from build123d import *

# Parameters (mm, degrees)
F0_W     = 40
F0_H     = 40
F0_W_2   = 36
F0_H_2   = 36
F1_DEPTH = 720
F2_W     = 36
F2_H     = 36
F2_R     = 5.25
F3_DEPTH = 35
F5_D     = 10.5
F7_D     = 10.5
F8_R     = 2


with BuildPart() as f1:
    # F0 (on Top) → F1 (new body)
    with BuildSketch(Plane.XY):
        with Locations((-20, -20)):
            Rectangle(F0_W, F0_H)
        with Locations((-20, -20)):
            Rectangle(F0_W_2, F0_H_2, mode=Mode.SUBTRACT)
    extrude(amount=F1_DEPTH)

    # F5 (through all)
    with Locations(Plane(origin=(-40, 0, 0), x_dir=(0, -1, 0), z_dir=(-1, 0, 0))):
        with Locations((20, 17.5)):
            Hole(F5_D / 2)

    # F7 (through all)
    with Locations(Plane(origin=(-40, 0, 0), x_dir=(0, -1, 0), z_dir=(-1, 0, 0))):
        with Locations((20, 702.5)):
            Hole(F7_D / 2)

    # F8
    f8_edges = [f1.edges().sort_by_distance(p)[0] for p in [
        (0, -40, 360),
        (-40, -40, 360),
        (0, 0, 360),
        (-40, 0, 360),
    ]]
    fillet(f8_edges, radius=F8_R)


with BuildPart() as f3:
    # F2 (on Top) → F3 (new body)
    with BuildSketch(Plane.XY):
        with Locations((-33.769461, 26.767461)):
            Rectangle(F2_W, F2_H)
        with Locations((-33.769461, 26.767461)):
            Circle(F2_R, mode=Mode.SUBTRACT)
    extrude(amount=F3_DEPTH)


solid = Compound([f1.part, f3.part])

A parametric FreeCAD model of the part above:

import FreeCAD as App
import Part
import Sketcher
from FreeCAD import Vector
Q = App.Units.Quantity


def edges_at(feature, points):
    """Names of the edges that pass closest to the given points."""
    edges = feature.Shape.Edges
    near = lambda p: min(range(len(edges)), key=lambda i: edges[i].distToShape(Part.Vertex(*p))[0])
    return sorted({f"Edge{near(p) + 1}" for p in points})

doc = App.newDocument("Part")
params = doc.addObject("Spreadsheet::Sheet", "Params")
for row, (alias, value) in enumerate([
    ("sketch1_width", "40 mm"),
    ("sketch1_width2", "36 mm"),
    ("pad1_length", "720 mm"),
    ("sketch2_diameter", "10.5 mm"),
    ("hole_diameter", "10.5 mm"),
    ("sketch3_diameter", "10.5 mm"),
    ("hole2_diameter", "10.5 mm"),
    ("fillet_radius", "2 mm"),
    ("sketch4_diameter", "10.5 mm"),
    ("sketch4_width", "36 mm"),
    ("pad2_length", "35 mm"),
], start=1):
    params.set(f"A{row}", alias)
    params.set(f"B{row}", "=" + value)
    params.setAlias(f"B{row}", alias)

body = doc.addObject("PartDesign::Body", "Body")

# Sketch on XY plane
sketch1 = body.newObject("Sketcher::SketchObject", "Sketch")
sketch1.AttachmentSupport = (doc.getObject("XY_Plane"), [""])
sketch1.MapMode = "FlatFace"
sketch1.addGeometry([
    Part.LineSegment(Vector(-40, 0, 0), Vector(-40, -40, 0)),  # 0
    Part.LineSegment(Vector(-40, -40, 0), Vector(0, -40, 0)),  # 1
    Part.LineSegment(Vector(0, -40, 0), Vector(0, 0, 0)),  # 2
    Part.LineSegment(Vector(0, 0, 0), Vector(-40, 0, 0)),  # 3
    Part.LineSegment(Vector(-2, -38, 0), Vector(-38, -38, 0)),  # 4
    Part.LineSegment(Vector(-38, -38, 0), Vector(-38, -2, 0)),  # 5
    Part.LineSegment(Vector(-38, -2, 0), Vector(-2, -2, 0)),  # 6
    Part.LineSegment(Vector(-2, -2, 0), Vector(-2, -38, 0)),  # 7
], False)
sketch1.addConstraint([
    Sketcher.Constraint("Coincident", 0, 2, 1, 1),
    Sketcher.Constraint("Coincident", 1, 2, 2, 1),
    Sketcher.Constraint("Coincident", 2, 2, 3, 1),
    Sketcher.Constraint("Coincident", 3, 2, 0, 1),
    Sketcher.Constraint("Coincident", 4, 2, 5, 1),
    Sketcher.Constraint("Coincident", 5, 2, 6, 1),
    Sketcher.Constraint("Coincident", 6, 2, 7, 1),
    Sketcher.Constraint("Coincident", 7, 2, 4, 1),
    Sketcher.Constraint("Vertical", 0),
    Sketcher.Constraint("Horizontal", 1),
    Sketcher.Constraint("Vertical", 2),
    Sketcher.Constraint("Horizontal", 3),
    Sketcher.Constraint("Horizontal", 4),
    Sketcher.Constraint("Vertical", 5),
    Sketcher.Constraint("Horizontal", 6),
    Sketcher.Constraint("Vertical", 7),
    Sketcher.Constraint("Coincident", 2, 2, -1, 1),
    Sketcher.Constraint("Equal", 3, 0),
    Sketcher.Constraint("Equal", 6, 5),
    Sketcher.Constraint("DistanceX", 1, 1, 1, 2, Q("40 mm")),
    Sketcher.Constraint("DistanceX", 4, 2, 4, 1, Q("36 mm")),
    Sketcher.Constraint("DistanceX", 4, 2, -1, 1, Q("38 mm")),
    Sketcher.Constraint("DistanceY", 4, 2, -1, 1, Q("38 mm")),
])
sketch1.setExpression("Constraints[19]", "Params.sketch1_width")
sketch1.setExpression("Constraints[20]", "Params.sketch1_width2")
pad1 = body.newObject("PartDesign::Pad", "Pad")
pad1.Profile = sketch1
pad1.setExpression("Length", "Params.pad1_length")

# Sketch on YZ plane
sketch2 = body.newObject("Sketcher::SketchObject", "Sketch001")
sketch2.AttachmentSupport = (doc.getObject("YZ_Plane"), [""])
sketch2.MapMode = "FlatFace"
sketch2.AttachmentOffset = App.Placement(Vector(0, 0, -40), App.Rotation())
sketch2.addGeometry(Part.Circle(Vector(-20, 17.5, 0), Vector(0, 0, 1), 5.25), False)
sketch2.addConstraint([
    Sketcher.Constraint("Diameter", 0, Q("10.5 mm")),
    Sketcher.Constraint("DistanceX", 0, 3, -1, 1, Q("20 mm")),
    Sketcher.Constraint("DistanceY", -1, 1, 0, 3, Q("17.5 mm")),
])
sketch2.setExpression("Constraints[0]", "Params.sketch2_diameter")
doc.recompute()
hole = body.newObject("PartDesign::Hole", "Hole")
hole.Profile = sketch2
hole.ThreadType = "None"
hole.setExpression("Diameter", "Params.hole_diameter")
hole.DepthType = "ThroughAll"
hole.Reversed = True

# Sketch on YZ plane
sketch3 = body.newObject("Sketcher::SketchObject", "Sketch002")
sketch3.AttachmentSupport = (doc.getObject("YZ_Plane"), [""])
sketch3.MapMode = "FlatFace"
sketch3.AttachmentOffset = App.Placement(Vector(0, 0, -40), App.Rotation())
sketch3.addGeometry(Part.Circle(Vector(-20, 702.5, 0), Vector(0, 0, 1), 5.25), False)
sketch3.addConstraint([
    Sketcher.Constraint("Diameter", 0, Q("10.5 mm")),
    Sketcher.Constraint("DistanceX", 0, 3, -1, 1, Q("20 mm")),
    Sketcher.Constraint("DistanceY", -1, 1, 0, 3, Q("702.5 mm")),
])
sketch3.setExpression("Constraints[0]", "Params.sketch3_diameter")
doc.recompute()
hole2 = body.newObject("PartDesign::Hole", "Hole001")
hole2.Profile = sketch3
hole2.ThreadType = "None"
hole2.setExpression("Diameter", "Params.hole2_diameter")
hole2.DepthType = "ThroughAll"
hole2.Reversed = True
doc.recompute()

fillet = body.newObject("PartDesign::Fillet", "Fillet")
fillet.Base = (hole2, edges_at(hole2, [
    (0, -40, 360),
    (-40, -40, 360),
    (0, 0, 360),
    (-40, 0, 360),
]))
fillet.setExpression("Radius", "Params.fillet_radius")
body2 = doc.addObject("PartDesign::Body", "Body001")

# Sketch on XY plane
sketch4 = body2.newObject("Sketcher::SketchObject", "Sketch003")
sketch4.AttachmentSupport = (doc.getObject("XY_Plane001"), [""])
sketch4.MapMode = "FlatFace"
sketch4.addGeometry([
    Part.LineSegment(Vector(-51.769461, 44.767461, 0), Vector(-51.769461, 8.767461, 0)),  # 0
    Part.LineSegment(Vector(-51.769461, 8.767461, 0), Vector(-15.769461, 8.767461, 0)),  # 1
    Part.LineSegment(Vector(-15.769461, 8.767461, 0), Vector(-15.769461, 44.767461, 0)),  # 2
    Part.LineSegment(Vector(-15.769461, 44.767461, 0), Vector(-51.769461, 44.767461, 0)),  # 3
    Part.Circle(Vector(-33.769461, 26.767461, 0), Vector(0, 0, 1), 5.25),  # 4
], False)
sketch4.addConstraint([
    Sketcher.Constraint("Coincident", 0, 2, 1, 1),
    Sketcher.Constraint("Coincident", 1, 2, 2, 1),
    Sketcher.Constraint("Coincident", 2, 2, 3, 1),
    Sketcher.Constraint("Coincident", 3, 2, 0, 1),
    Sketcher.Constraint("Vertical", 0),
    Sketcher.Constraint("Horizontal", 1),
    Sketcher.Constraint("Vertical", 2),
    Sketcher.Constraint("Horizontal", 3),
    Sketcher.Constraint("Equal", 3, 0),
    Sketcher.Constraint("Diameter", 4, Q("10.5 mm")),
    Sketcher.Constraint("DistanceX", 1, 1, 1, 2, Q("36 mm")),
    Sketcher.Constraint("DistanceX", 0, 2, 4, 3, Q("18 mm")),
    Sketcher.Constraint("DistanceY", 0, 2, 4, 3, Q("18 mm")),
    Sketcher.Constraint("DistanceX", 4, 3, -1, 1, Q("33.769461 mm")),
    Sketcher.Constraint("DistanceY", -1, 1, 4, 3, Q("26.767461 mm")),
])
sketch4.setExpression("Constraints[9]", "Params.sketch4_diameter")
sketch4.setExpression("Constraints[10]", "Params.sketch4_width")
pad2 = body2.newObject("PartDesign::Pad", "Pad001")
pad2.Profile = sketch4
pad2.setExpression("Length", "Params.pad2_length")

doc.recompute()
